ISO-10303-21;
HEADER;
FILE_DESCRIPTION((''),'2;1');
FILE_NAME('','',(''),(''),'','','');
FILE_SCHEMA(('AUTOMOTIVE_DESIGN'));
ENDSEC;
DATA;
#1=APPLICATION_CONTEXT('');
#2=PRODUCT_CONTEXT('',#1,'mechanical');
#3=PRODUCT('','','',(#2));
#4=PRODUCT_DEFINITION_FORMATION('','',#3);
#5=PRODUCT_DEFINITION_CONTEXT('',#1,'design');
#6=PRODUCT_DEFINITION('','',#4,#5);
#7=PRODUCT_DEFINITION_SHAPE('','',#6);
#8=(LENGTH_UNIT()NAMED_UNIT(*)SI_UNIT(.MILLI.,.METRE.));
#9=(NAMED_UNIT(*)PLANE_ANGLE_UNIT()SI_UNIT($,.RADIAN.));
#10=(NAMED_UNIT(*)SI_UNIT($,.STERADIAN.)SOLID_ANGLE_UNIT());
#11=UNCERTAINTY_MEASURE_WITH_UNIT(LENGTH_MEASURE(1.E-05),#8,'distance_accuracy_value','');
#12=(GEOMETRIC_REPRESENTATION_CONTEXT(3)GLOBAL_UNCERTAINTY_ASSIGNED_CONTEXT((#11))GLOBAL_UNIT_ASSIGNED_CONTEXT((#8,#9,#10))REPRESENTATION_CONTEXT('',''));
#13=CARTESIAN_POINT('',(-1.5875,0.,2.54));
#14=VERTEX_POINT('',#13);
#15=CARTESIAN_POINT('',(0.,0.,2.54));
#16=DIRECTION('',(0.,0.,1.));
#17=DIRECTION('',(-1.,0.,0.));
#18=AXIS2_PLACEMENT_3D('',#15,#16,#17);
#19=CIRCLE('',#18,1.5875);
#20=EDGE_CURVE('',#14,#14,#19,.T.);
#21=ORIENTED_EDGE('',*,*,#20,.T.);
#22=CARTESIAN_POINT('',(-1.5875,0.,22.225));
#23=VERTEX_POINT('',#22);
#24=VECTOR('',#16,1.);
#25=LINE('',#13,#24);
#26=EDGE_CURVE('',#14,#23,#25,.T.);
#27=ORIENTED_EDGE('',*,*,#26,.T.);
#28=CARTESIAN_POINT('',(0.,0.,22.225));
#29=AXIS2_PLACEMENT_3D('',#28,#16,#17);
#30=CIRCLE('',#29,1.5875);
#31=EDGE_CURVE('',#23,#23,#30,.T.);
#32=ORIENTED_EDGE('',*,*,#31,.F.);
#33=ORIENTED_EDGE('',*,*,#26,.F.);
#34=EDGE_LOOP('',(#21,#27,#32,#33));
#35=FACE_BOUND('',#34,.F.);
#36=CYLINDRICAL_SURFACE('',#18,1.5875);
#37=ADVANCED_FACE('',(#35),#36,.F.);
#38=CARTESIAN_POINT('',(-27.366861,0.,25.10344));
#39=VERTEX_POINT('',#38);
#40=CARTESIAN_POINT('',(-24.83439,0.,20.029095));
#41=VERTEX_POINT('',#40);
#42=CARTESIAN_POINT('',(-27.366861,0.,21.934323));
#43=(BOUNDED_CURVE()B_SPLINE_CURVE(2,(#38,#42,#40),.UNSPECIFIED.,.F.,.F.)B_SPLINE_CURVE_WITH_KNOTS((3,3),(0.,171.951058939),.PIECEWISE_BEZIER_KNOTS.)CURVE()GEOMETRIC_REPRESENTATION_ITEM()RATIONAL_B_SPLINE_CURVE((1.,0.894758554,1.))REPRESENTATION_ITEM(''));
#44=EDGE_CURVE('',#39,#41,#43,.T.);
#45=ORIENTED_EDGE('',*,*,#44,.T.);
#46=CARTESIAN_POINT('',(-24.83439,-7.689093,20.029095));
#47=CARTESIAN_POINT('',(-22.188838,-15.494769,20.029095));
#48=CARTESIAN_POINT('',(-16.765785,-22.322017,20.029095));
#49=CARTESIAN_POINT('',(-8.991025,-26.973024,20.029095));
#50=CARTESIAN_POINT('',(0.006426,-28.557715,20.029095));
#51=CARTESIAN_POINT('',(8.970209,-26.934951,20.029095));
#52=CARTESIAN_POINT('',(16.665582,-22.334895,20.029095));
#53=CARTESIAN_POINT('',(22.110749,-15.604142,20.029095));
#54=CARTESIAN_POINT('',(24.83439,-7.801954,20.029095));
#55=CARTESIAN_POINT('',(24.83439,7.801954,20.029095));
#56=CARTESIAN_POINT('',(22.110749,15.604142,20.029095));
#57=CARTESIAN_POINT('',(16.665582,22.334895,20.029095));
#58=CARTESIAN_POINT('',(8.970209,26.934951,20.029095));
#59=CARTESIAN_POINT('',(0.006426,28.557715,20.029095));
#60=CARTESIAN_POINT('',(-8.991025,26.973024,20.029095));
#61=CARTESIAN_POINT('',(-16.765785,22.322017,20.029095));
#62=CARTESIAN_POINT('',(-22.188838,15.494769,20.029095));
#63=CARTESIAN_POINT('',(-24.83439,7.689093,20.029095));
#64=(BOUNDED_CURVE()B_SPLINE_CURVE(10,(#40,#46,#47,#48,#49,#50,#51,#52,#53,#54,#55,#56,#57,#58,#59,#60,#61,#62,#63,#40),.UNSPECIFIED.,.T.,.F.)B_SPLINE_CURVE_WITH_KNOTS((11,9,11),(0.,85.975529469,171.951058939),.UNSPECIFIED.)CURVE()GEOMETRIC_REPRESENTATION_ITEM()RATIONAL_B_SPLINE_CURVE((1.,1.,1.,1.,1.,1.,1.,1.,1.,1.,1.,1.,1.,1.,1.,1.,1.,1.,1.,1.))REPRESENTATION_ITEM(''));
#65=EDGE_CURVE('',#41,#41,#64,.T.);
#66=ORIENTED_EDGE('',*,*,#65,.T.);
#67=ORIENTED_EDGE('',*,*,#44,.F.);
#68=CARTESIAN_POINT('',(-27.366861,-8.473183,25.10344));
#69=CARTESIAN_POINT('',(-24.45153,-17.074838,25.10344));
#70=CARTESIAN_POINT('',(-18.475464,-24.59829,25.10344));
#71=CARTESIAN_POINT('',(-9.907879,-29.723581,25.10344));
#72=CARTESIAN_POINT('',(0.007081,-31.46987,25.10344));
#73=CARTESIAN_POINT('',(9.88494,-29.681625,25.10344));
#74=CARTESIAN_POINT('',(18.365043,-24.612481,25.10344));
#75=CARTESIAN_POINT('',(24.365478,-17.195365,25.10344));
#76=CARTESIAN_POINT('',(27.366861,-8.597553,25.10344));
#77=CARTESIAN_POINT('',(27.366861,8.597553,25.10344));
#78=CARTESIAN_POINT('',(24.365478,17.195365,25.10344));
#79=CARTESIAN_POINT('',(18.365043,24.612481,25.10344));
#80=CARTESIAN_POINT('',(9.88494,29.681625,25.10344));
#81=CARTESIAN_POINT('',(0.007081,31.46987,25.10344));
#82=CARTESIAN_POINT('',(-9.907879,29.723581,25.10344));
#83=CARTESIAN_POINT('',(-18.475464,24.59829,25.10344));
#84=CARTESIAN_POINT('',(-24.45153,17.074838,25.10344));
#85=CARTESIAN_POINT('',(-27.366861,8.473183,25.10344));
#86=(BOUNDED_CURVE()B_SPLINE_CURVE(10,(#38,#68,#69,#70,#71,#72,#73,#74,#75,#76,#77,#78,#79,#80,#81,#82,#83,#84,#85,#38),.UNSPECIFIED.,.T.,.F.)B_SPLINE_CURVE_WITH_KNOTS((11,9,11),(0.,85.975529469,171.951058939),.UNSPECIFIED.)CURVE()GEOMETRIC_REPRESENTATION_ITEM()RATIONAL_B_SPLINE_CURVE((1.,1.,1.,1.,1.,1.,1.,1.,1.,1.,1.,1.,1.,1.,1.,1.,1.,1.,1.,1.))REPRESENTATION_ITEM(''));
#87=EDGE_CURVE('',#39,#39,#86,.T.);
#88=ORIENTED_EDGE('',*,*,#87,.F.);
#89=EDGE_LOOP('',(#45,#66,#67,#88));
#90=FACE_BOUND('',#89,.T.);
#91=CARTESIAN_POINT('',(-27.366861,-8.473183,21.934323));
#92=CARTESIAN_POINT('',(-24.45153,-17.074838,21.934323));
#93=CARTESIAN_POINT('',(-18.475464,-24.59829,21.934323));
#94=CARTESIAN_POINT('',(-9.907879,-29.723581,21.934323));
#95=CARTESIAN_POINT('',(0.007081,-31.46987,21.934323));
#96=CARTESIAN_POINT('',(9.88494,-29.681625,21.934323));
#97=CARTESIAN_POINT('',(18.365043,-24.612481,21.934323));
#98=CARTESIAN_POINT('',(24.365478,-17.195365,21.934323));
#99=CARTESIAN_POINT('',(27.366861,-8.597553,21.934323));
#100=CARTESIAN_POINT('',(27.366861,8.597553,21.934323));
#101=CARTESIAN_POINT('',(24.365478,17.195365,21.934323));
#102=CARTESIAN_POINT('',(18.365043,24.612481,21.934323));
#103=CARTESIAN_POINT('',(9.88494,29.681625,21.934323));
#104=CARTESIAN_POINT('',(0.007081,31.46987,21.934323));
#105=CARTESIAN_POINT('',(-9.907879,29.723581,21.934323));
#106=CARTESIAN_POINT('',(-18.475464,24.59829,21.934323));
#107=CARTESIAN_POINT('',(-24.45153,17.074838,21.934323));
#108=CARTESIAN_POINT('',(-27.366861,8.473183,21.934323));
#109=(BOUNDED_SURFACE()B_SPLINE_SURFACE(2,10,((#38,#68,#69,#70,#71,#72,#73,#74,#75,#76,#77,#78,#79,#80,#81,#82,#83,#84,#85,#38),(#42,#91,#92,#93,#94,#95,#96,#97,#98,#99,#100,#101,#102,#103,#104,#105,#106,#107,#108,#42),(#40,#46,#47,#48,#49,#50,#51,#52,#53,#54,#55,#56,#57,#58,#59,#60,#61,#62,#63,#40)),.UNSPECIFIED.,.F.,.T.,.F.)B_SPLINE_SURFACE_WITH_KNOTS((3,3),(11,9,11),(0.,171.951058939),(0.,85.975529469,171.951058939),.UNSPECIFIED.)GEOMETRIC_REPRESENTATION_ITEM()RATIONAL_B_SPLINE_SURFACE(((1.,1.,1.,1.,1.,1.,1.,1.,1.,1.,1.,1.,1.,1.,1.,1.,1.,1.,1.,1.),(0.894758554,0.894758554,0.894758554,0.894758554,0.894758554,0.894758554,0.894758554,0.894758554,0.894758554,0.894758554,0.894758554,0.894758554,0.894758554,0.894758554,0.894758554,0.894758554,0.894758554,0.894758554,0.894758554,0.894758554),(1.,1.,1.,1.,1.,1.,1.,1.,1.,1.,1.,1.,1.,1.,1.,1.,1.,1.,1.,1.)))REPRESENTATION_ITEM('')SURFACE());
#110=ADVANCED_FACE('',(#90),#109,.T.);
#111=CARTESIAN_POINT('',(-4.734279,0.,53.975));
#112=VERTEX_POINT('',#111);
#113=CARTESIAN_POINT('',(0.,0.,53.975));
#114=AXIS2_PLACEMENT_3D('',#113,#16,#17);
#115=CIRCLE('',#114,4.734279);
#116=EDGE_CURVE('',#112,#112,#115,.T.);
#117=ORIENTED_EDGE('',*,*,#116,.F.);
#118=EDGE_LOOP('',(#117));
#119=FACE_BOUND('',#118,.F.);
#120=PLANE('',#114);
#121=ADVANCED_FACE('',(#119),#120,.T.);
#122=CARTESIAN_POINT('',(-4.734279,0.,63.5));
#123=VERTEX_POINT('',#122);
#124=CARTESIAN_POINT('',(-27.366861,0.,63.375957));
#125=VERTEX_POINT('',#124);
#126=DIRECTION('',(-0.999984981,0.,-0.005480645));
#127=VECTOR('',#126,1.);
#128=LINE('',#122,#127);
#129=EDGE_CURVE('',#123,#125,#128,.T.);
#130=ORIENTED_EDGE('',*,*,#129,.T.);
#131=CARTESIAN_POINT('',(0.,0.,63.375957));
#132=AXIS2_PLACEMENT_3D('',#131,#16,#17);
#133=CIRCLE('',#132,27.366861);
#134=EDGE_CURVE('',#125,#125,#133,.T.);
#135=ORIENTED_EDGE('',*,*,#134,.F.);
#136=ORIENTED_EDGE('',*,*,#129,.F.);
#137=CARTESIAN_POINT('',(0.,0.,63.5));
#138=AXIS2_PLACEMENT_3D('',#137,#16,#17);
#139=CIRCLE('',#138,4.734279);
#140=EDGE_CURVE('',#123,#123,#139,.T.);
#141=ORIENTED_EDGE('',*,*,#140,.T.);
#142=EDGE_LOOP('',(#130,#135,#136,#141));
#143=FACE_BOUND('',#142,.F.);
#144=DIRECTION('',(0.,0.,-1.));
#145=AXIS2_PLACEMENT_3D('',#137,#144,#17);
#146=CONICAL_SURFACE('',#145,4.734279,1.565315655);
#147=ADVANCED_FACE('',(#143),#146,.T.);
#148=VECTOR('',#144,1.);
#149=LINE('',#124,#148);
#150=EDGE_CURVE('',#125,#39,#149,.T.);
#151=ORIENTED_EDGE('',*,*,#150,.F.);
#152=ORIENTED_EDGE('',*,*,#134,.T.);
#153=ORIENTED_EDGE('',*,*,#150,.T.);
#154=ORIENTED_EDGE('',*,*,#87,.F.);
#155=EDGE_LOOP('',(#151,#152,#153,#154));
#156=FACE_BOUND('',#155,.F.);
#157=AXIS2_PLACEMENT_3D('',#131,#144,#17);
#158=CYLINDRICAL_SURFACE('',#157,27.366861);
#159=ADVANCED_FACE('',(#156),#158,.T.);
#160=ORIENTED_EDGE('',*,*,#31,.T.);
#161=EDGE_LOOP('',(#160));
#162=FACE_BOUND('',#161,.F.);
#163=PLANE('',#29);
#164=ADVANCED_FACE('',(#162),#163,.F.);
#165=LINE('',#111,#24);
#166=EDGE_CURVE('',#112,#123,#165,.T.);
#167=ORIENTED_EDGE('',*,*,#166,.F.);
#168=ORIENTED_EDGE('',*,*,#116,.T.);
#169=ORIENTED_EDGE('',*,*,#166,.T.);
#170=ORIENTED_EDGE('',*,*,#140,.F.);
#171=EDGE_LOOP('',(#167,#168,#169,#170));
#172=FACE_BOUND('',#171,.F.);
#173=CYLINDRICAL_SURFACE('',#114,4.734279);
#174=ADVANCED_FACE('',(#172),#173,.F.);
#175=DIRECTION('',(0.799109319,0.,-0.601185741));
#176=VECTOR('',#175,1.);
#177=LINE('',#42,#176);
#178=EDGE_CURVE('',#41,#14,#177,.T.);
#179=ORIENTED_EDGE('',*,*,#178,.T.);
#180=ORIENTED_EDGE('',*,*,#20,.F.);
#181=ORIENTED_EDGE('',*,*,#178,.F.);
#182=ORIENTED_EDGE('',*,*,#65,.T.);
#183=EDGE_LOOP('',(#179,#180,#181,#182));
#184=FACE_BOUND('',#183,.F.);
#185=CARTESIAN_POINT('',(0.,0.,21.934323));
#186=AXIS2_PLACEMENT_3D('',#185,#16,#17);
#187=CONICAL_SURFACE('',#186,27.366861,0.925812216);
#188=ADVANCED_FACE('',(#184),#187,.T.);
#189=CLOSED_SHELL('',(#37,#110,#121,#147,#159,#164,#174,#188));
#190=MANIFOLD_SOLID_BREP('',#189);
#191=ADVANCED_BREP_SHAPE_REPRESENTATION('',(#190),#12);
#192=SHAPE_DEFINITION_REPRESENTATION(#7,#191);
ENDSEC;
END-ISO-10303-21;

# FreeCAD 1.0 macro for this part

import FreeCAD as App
import Part
import Sketcher
Q = App.Units.Quantity


def edges_at(feature, points):
    """Names of the edges that pass closest to the given points."""
    edges = feature.Shape.Edges
    near = lambda p: min(range(len(edges)), key=lambda i: edges[i].distToShape(Part.Vertex(*p))[0])
    return sorted({f"Edge{near(p) + 1}" for p in points})

doc = App.newDocument("Part")
body = doc.addObject("PartDesign::Body", "Body")

sketch1 = doc.addObject("Sketcher::SketchObject", "Sketch")
body.addObject(sketch1)
sketch1.AttachmentSupport = (doc.XZ_Plane, [""])
sketch1.MapMode = "FlatFace"
sketch1.addGeometry(Part.LineSegment(App.Vector(-1.6, 22.2, 0), App.Vector(0, 22.2, 0)), False)
sketch1.addGeometry(Part.LineSegment(App.Vector(0, 22.2, 0), App.Vector(0, 54, 0)), False)
sketch1.addGeometry(Part.LineSegment(App.Vector(0, 54, 0), App.Vector(-4.7, 54, 0)), False)
sketch1.addGeometry(Part.LineSegment(App.Vector(-4.7, 54, 0), App.Vector(-4.7, 63.5, 0)), False)
sketch1.addGeometry(Part.LineSegment(App.Vector(-4.7, 63.5, 0), App.Vector(-27.4, 63.4, 0)), False)
sketch1.addGeometry(Part.LineSegment(App.Vector(-27.4, 63.4, 0), App.Vector(-27.4, 21.9, 0)), False)
sketch1.addGeometry(Part.LineSegment(App.Vector(-27.4, 21.9, 0), App.Vector(-1.6, 2.5, 0)), False)
sketch1.addGeometry(Part.LineSegment(App.Vector(-1.6, 2.5, 0), App.Vector(-1.6, 22.2, 0)), False)
sketch1.addConstraint(Sketcher.Constraint("Coincident", 0, 2, 1, 1))
sketch1.addConstraint(Sketcher.Constraint("Coincident", 1, 2, 2, 1))
sketch1.addConstraint(Sketcher.Constraint("Coincident", 2, 2, 3, 1))
sketch1.addConstraint(Sketcher.Constraint("Coincident", 3, 2, 4, 1))
sketch1.addConstraint(Sketcher.Constraint("Coincident", 4, 2, 5, 1))
sketch1.addConstraint(Sketcher.Constraint("Coincident", 5, 2, 6, 1))
sketch1.addConstraint(Sketcher.Constraint("Coincident", 6, 2, 7, 1))
sketch1.addConstraint(Sketcher.Constraint("Coincident", 7, 2, 0, 1))
sketch1.addConstraint(Sketcher.Constraint("Horizontal", 0))
sketch1.addConstraint(Sketcher.Constraint("Vertical", 1))
sketch1.addConstraint(Sketcher.Constraint("Horizontal", 2))
sketch1.addConstraint(Sketcher.Constraint("Vertical", 3))
sketch1.addConstraint(Sketcher.Constraint("Vertical", 5))
sketch1.addConstraint(Sketcher.Constraint("Vertical", 7))
sketch1.addConstraint(Sketcher.Constraint("PointOnObject", 0, 2, -2))
sketch1.addConstraint(Sketcher.Constraint("DistanceY", 1, 1, 1, 2, Q("1.25 in")))
sketch1.addConstraint(Sketcher.Constraint("DistanceY", -1, 1, 3, 2, Q("2.5 in")))
sketch1.addConstraint(Sketcher.Constraint("DistanceY", -1, 1, 6, 2, Q("0.1 in")))
sketch1.addConstraint(Sketcher.Constraint("DistanceX", 0, 1, 0, 2, Q("0.0625 in")))
sketch1.addConstraint(Sketcher.Constraint("DistanceY", 3, 1, 3, 2, Q("0.375 in")))
sketch1.addConstraint(Sketcher.Constraint("DistanceX", 2, 2, 2, 1, Q("4.734279 mm")))
sketch1.addConstraint(Sketcher.Constraint("Distance", 4, Q("22.632922 mm")))
sketch1.addConstraint(Sketcher.Constraint("Distance", 6, Q("32.260118 mm")))
sketch1.addConstraint(Sketcher.Constraint("DistanceY", 5, 2, 5, 1, Q("41.441634 mm")))
revolution = doc.addObject("PartDesign::Revolution", "Revolution")
body.addObject(revolution)
revolution.Profile = sketch1
revolution.ReferenceAxis = (sketch1, ["V_Axis"])
revolution.Angle = 360
doc.recompute()

fillet = doc.addObject("PartDesign::Fillet", "Fillet")
body.addObject(fillet)
fillet.Base = (revolution, edges_at(revolution, [(27.367, 0, 21.934)]))
fillet.Radius = Q("0.25 in")

doc.recompute()
